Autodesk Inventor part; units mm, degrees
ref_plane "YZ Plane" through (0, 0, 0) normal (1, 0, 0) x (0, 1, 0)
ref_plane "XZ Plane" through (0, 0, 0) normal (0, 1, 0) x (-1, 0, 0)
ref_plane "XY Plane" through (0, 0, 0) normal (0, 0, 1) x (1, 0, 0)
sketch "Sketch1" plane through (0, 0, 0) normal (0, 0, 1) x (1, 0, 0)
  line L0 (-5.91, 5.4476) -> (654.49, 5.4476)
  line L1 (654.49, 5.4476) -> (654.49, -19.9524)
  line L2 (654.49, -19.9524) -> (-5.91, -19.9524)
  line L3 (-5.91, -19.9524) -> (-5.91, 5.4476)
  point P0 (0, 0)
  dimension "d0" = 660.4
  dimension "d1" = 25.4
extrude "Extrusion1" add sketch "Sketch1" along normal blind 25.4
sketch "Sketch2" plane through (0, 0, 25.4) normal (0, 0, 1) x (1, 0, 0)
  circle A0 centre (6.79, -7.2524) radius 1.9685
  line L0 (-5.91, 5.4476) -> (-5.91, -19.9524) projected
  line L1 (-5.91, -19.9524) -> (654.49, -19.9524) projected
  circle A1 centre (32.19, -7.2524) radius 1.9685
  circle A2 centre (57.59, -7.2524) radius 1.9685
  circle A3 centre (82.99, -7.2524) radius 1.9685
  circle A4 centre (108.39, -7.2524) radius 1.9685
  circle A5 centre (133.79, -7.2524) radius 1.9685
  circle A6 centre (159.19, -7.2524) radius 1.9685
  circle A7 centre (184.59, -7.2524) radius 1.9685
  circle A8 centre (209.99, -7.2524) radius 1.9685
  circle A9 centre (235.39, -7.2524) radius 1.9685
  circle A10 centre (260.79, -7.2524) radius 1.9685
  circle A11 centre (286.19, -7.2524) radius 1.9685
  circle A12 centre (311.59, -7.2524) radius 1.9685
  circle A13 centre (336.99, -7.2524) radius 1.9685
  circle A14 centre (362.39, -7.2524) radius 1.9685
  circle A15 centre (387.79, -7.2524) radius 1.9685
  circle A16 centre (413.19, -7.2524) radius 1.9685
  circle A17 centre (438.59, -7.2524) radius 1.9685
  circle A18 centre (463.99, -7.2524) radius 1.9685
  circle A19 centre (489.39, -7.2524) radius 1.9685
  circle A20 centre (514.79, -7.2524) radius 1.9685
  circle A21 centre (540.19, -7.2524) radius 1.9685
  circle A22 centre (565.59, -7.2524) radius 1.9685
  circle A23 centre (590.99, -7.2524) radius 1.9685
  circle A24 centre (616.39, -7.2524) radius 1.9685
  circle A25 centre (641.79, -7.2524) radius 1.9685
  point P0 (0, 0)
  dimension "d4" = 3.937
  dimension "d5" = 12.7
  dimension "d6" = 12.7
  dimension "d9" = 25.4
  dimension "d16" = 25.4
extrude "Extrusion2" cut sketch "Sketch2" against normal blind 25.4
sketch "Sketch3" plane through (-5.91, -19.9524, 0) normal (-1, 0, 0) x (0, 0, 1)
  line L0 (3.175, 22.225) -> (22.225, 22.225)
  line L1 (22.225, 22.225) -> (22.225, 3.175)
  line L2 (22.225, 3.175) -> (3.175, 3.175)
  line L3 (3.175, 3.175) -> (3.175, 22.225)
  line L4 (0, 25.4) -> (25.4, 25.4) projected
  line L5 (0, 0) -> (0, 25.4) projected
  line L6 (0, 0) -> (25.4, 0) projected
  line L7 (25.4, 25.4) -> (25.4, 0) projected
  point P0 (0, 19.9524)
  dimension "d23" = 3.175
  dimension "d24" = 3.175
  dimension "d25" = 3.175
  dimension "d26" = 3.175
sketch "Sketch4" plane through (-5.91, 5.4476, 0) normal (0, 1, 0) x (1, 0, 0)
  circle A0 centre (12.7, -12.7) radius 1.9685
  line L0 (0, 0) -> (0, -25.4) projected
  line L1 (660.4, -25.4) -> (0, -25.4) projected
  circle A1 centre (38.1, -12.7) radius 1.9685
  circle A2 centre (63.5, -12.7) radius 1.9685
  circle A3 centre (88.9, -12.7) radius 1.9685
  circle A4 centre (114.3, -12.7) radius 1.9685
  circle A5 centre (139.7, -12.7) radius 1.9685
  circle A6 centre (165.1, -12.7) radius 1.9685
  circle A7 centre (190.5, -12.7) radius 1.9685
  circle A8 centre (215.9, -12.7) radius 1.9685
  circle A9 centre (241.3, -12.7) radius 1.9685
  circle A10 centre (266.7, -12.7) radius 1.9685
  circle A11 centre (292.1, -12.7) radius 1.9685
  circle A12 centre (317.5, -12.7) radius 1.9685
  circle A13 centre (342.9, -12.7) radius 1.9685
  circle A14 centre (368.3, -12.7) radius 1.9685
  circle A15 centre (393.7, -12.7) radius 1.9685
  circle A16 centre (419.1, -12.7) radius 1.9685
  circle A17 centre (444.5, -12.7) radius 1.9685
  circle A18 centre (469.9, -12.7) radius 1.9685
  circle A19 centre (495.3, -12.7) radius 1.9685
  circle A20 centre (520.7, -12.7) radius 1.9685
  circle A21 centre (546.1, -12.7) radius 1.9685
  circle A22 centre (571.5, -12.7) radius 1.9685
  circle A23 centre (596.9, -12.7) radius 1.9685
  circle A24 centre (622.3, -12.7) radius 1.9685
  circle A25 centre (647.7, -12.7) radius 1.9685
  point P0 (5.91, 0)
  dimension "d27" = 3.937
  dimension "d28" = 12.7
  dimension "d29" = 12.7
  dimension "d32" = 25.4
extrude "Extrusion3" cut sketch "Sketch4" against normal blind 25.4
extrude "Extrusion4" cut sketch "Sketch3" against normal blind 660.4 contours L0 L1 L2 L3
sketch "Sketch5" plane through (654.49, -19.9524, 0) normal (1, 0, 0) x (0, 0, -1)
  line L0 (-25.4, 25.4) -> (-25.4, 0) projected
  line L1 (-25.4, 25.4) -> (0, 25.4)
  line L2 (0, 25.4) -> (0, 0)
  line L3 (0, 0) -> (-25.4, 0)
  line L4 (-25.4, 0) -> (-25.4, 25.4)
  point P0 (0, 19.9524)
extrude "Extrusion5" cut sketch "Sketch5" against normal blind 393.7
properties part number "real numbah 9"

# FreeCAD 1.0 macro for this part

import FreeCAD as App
import Part
import Sketcher
from FreeCAD import Vector
Q = App.Units.Quantity

doc = App.newDocument("Part")
params = doc.addObject("Spreadsheet::Sheet", "Params")
for row, (alias, value) in enumerate([
    ("sketch1_width", "26 in"),
    ("sketch1_height", "1 in"),
    ("pad1_length", "1 in"),
    ("sketch2_diameter", "0.155 in"),
    ("pocket1_length", "1 in"),
    ("sketch3_diameter", "0.155 in"),
    ("pocket2_length", "1 in"),
    ("sketch4_width", "0.75 in"),
    ("pocket3_length", "26 in"),
    ("sketch5_width", "1 in"),
    ("pocket4_length", "15.5 in"),
], start=1):
    params.set(f"A{row}", alias)
    params.set(f"B{row}", "=" + value)
    params.setAlias(f"B{row}", alias)

body = doc.addObject("PartDesign::Body", "Body")

# Sketch on XY plane
sketch1 = doc.addObject("Sketcher::SketchObject", "Sketch")
body.addObject(sketch1)
sketch1.AttachmentSupport = (doc.XY_Plane, [""])
sketch1.MapMode = "FlatFace"
sketch1.addGeometry([
    Part.LineSegment(Vector(654.49, 5.4476, 0), Vector(-5.91, 5.4476, 0)),
    Part.LineSegment(Vector(-5.91, 5.4476, 0), Vector(-5.91, -19.9524, 0)),
    Part.LineSegment(Vector(-5.91, -19.9524, 0), Vector(654.49, -19.9524, 0)),
    Part.LineSegment(Vector(654.49, -19.9524, 0), Vector(654.49, 5.4476, 0)),
], False)
sketch1.addConstraint([
    Sketcher.Constraint("Coincident", 0, 2, 1, 1),
    Sketcher.Constraint("Coincident", 1, 2, 2, 1),
    Sketcher.Constraint("Coincident", 2, 2, 3, 1),
    Sketcher.Constraint("Coincident", 3, 2, 0, 1),
    Sketcher.Constraint("Horizontal", 0),
    Sketcher.Constraint("Vertical", 1),
    Sketcher.Constraint("Horizontal", 2),
    Sketcher.Constraint("Vertical", 3),
    Sketcher.Constraint("DistanceX", 0, 2, 0, 1, Q("26 in")),
    Sketcher.Constraint("DistanceY", 1, 2, 1, 1, Q("1 in")),
    Sketcher.Constraint("DistanceX", 0, 2, -1, 1, 5.91),
    Sketcher.Constraint("DistanceY", -1, 1, 0, 2, 5.4476),
])
sketch1.setExpression("Constraints[8]", "Params.sketch1_width")
sketch1.setExpression("Constraints[9]", "Params.sketch1_height")
pad1 = doc.addObject("PartDesign::Pad", "Pad")
body.addObject(pad1)
pad1.Profile = sketch1
pad1.setExpression("Length", "Params.pad1_length")

# Sketch on XY plane
sketch2 = doc.addObject("Sketcher::SketchObject", "Sketch001")
body.addObject(sketch2)
sketch2.AttachmentSupport = (doc.XY_Plane, [""])
sketch2.MapMode = "FlatFace"
sketch2.AttachmentOffset = App.Placement(Vector(0, 0, 1 * 25.4), App.Rotation())
sketch2.addGeometry([
    Part.Circle(Vector(6.79, -7.2524, 0), Vector(0, 0, 1), 1.9685),  # 0
    Part.Circle(Vector(32.19, -7.2524, 0), Vector(0, 0, 1), 1.9685),  # 1
    Part.Circle(Vector(57.59, -7.2524, 0), Vector(0, 0, 1), 1.9685),  # 2
    Part.Circle(Vector(82.99, -7.2524, 0), Vector(0, 0, 1), 1.9685),  # 3
    Part.Circle(Vector(108.39, -7.2524, 0), Vector(0, 0, 1), 1.9685),  # 4
    Part.Circle(Vector(133.79, -7.2524, 0), Vector(0, 0, 1), 1.9685),  # 5
    Part.Circle(Vector(159.19, -7.2524, 0), Vector(0, 0, 1), 1.9685),  # 6
    Part.Circle(Vector(184.59, -7.2524, 0), Vector(0, 0, 1), 1.9685),  # 7
    Part.Circle(Vector(209.99, -7.2524, 0), Vector(0, 0, 1), 1.9685),  # 8
    Part.Circle(Vector(235.39, -7.2524, 0), Vector(0, 0, 1), 1.9685),  # 9
    Part.Circle(Vector(260.79, -7.2524, 0), Vector(0, 0, 1), 1.9685),  # 10
    Part.Circle(Vector(286.19, -7.2524, 0), Vector(0, 0, 1), 1.9685),  # 11
    Part.Circle(Vector(311.59, -7.2524, 0), Vector(0, 0, 1), 1.9685),  # 12
    Part.Circle(Vector(336.99, -7.2524, 0), Vector(0, 0, 1), 1.9685),  # 13
    Part.Circle(Vector(362.39, -7.2524, 0), Vector(0, 0, 1), 1.9685),  # 14
    Part.Circle(Vector(387.79, -7.2524, 0), Vector(0, 0, 1), 1.9685),  # 15
    Part.Circle(Vector(413.19, -7.2524, 0), Vector(0, 0, 1), 1.9685),  # 16
    Part.Circle(Vector(438.59, -7.2524, 0), Vector(0, 0, 1), 1.9685),  # 17
    Part.Circle(Vector(463.99, -7.2524, 0), Vector(0, 0, 1), 1.9685),  # 18
    Part.Circle(Vector(489.39, -7.2524, 0), Vector(0, 0, 1), 1.9685),  # 19
    Part.Circle(Vector(514.79, -7.2524, 0), Vector(0, 0, 1), 1.9685),  # 20
    Part.Circle(Vector(540.19, -7.2524, 0), Vector(0, 0, 1), 1.9685),  # 21
    Part.Circle(Vector(565.59, -7.2524, 0), Vector(0, 0, 1), 1.9685),  # 22
    Part.Circle(Vector(590.99, -7.2524, 0), Vector(0, 0, 1), 1.9685),  # 23
    Part.Circle(Vector(616.39, -7.2524, 0), Vector(0, 0, 1), 1.9685),  # 24
    Part.Circle(Vector(641.79, -7.2524, 0), Vector(0, 0, 1), 1.9685),  # 25
], False)
sketch2.addConstraint([
    Sketcher.Constraint("Equal", 0, 1),
    Sketcher.Constraint("Equal", 1, 2),
    Sketcher.Constraint("Equal", 2, 3),
    Sketcher.Constraint("Equal", 3, 4),
    Sketcher.Constraint("Equal", 4, 5),
    Sketcher.Constraint("Equal", 5, 6),
    Sketcher.Constraint("Equal", 6, 7),
    Sketcher.Constraint("Equal", 7, 8),
    Sketcher.Constraint("Equal", 8, 9),
    Sketcher.Constraint("Equal", 9, 10),
    Sketcher.Constraint("Equal", 10, 11),
    Sketcher.Constraint("Equal", 11, 12),
    Sketcher.Constraint("Equal", 12, 13),
    Sketcher.Constraint("Equal", 13, 14),
    Sketcher.Constraint("Equal", 14, 15),
    Sketcher.Constraint("Equal", 15, 16),
    Sketcher.Constraint("Equal", 16, 17),
    Sketcher.Constraint("Equal", 17, 18),
    Sketcher.Constraint("Equal", 18, 19),
    Sketcher.Constraint("Equal", 19, 20),
    Sketcher.Constraint("Equal", 20, 21),
    Sketcher.Constraint("Equal", 21, 22),
    Sketcher.Constraint("Equal", 22, 23),
    Sketcher.Constraint("Equal", 23, 24),
    Sketcher.Constraint("Equal", 24, 25),
    Sketcher.Constraint("Horizontal", 0, 3, 1, 3),
    Sketcher.Constraint("Horizontal", 1, 3, 2, 3),
    Sketcher.Constraint("Horizontal", 2, 3, 3, 3),
    Sketcher.Constraint("Horizontal", 3, 3, 4, 3),
    Sketcher.Constraint("Horizontal", 4, 3, 5, 3),
    Sketcher.Constraint("Horizontal", 5, 3, 6, 3),
    Sketcher.Constraint("Horizontal", 6, 3, 7, 3),
    Sketcher.Constraint("Horizontal", 7, 3, 8, 3),
    Sketcher.Constraint("Horizontal", 8, 3, 9, 3),
    Sketcher.Constraint("Horizontal", 9, 3, 10, 3),
    Sketcher.Constraint("Horizontal", 10, 3, 11, 3),
    Sketcher.Constraint("Horizontal", 11, 3, 12, 3),
    Sketcher.Constraint("Horizontal", 12, 3, 13, 3),
    Sketcher.Constraint("Horizontal", 13, 3, 14, 3),
    Sketcher.Constraint("Horizontal", 14, 3, 15, 3),
    Sketcher.Constraint("Horizontal", 15, 3, 16, 3),
    Sketcher.Constraint("Horizontal", 16, 3, 17, 3),
    Sketcher.Constraint("Horizontal", 17, 3, 18, 3),
    Sketcher.Constraint("Horizontal", 18, 3, 19, 3),
    Sketcher.Constraint("Horizontal", 19, 3, 20, 3),
    Sketcher.Constraint("Horizontal", 20, 3, 21, 3),
    Sketcher.Constraint("Horizontal", 21, 3, 22, 3),
    Sketcher.Constraint("Horizontal", 22, 3, 23, 3),
    Sketcher.Constraint("Horizontal", 23, 3, 24, 3),
    Sketcher.Constraint("Horizontal", 24, 3, 25, 3),
    Sketcher.Constraint("Diameter", 0, Q("0.155 in")),
    Sketcher.Constraint("DistanceX", 0, 3, 1, 3, Q("1 in")),
    Sketcher.Constraint("DistanceX", 1, 3, 2, 3, Q("1 in")),
    Sketcher.Constraint("DistanceX", 2, 3, 3, 3, Q("1 in")),
    Sketcher.Constraint("DistanceX", 3, 3, 4, 3, Q("1 in")),
    Sketcher.Constraint("DistanceX", 4, 3, 5, 3, Q("1 in")),
    Sketcher.Constraint("DistanceX", 5, 3, 6, 3, Q("1 in")),
    Sketcher.Constraint("DistanceX", 6, 3, 7, 3, Q("1 in")),
    Sketcher.Constraint("DistanceX", 7, 3, 8, 3, Q("1 in")),
    Sketcher.Constraint("DistanceX", 8, 3, 9, 3, Q("1 in")),
    Sketcher.Constraint("DistanceX", 9, 3, 10, 3, Q("1 in")),
    Sketcher.Constraint("DistanceX", 10, 3, 11, 3, Q("1 in")),
    Sketcher.Constraint("DistanceX", 11, 3, 12, 3, Q("1 in")),
    Sketcher.Constraint("DistanceX", 12, 3, 13, 3, Q("1 in")),
    Sketcher.Constraint("DistanceX", 13, 3, 14, 3, Q("1 in")),
    Sketcher.Constraint("DistanceX", 14, 3, 15, 3, Q("1 in")),
    Sketcher.Constraint("DistanceX", 15, 3, 16, 3, Q("1 in")),
    Sketcher.Constraint("DistanceX", 16, 3, 17, 3, Q("1 in")),
    Sketcher.Constraint("DistanceX", 17, 3, 18, 3, Q("1 in")),
    Sketcher.Constraint("DistanceX", 18, 3, 19, 3, Q("1 in")),
    Sketcher.Constraint("DistanceX", 19, 3, 20, 3, Q("1 in")),
    Sketcher.Constraint("DistanceX", 20, 3, 21, 3, Q("1 in")),
    Sketcher.Constraint("DistanceX", 21, 3, 22, 3, Q("1 in")),
    Sketcher.Constraint("DistanceX", 22, 3, 23, 3, Q("1 in")),
    Sketcher.Constraint("DistanceX", 23, 3, 24, 3, Q("1 in")),
    Sketcher.Constraint("DistanceX", 24, 3, 25, 3, Q("1 in")),
    Sketcher.Constraint("DistanceX", -1, 1, 0, 3, 6.79),
    Sketcher.Constraint("DistanceY", 0, 3, -1, 1, 7.2524),
])
sketch2.setExpression("Constraints[50]", "Params.sketch2_diameter")
pocket1 = doc.addObject("PartDesign::Pocket", "Pocket")
body.addObject(pocket1)
pocket1.Profile = sketch2
pocket1.setExpression("Length", "Params.pocket1_length")

# Sketch on XZ plane
sketch3 = doc.addObject("Sketcher::SketchObject", "Sketch002")
body.addObject(sketch3)
sketch3.AttachmentSupport = (doc.XZ_Plane, [""])
sketch3.MapMode = "FlatFace"
sketch3.AttachmentOffset = App.Placement(Vector(0, 0, -5.4476), App.Rotation())
sketch3.addGeometry([
    Part.Circle(Vector(6.79, 12.7, 0), Vector(0, 0, 1), 1.9685),  # 0
    Part.Circle(Vector(32.19, 12.7, 0), Vector(0, 0, 1), 1.9685),  # 1
    Part.Circle(Vector(57.59, 12.7, 0), Vector(0, 0, 1), 1.9685),  # 2
    Part.Circle(Vector(82.99, 12.7, 0), Vector(0, 0, 1), 1.9685),  # 3
    Part.Circle(Vector(108.39, 12.7, 0), Vector(0, 0, 1), 1.9685),  # 4
    Part.Circle(Vector(133.79, 12.7, 0), Vector(0, 0, 1), 1.9685),  # 5
    Part.Circle(Vector(159.19, 12.7, 0), Vector(0, 0, 1), 1.9685),  # 6
    Part.Circle(Vector(184.59, 12.7, 0), Vector(0, 0, 1), 1.9685),  # 7
    Part.Circle(Vector(209.99, 12.7, 0), Vector(0, 0, 1), 1.9685),  # 8
    Part.Circle(Vector(235.39, 12.7, 0), Vector(0, 0, 1), 1.9685),  # 9
    Part.Circle(Vector(260.79, 12.7, 0), Vector(0, 0, 1), 1.9685),  # 10
    Part.Circle(Vector(286.19, 12.7, 0), Vector(0, 0, 1), 1.9685),  # 11
    Part.Circle(Vector(311.59, 12.7, 0), Vector(0, 0, 1), 1.9685),  # 12
    Part.Circle(Vector(336.99, 12.7, 0), Vector(0, 0, 1), 1.9685),  # 13
    Part.Circle(Vector(362.39, 12.7, 0), Vector(0, 0, 1), 1.9685),  # 14
    Part.Circle(Vector(387.79, 12.7, 0), Vector(0, 0, 1), 1.9685),  # 15
    Part.Circle(Vector(413.19, 12.7, 0), Vector(0, 0, 1), 1.9685),  # 16
    Part.Circle(Vector(438.59, 12.7, 0), Vector(0, 0, 1), 1.9685),  # 17
    Part.Circle(Vector(463.99, 12.7, 0), Vector(0, 0, 1), 1.9685),  # 18
    Part.Circle(Vector(489.39, 12.7, 0), Vector(0, 0, 1), 1.9685),  # 19
    Part.Circle(Vector(514.79, 12.7, 0), Vector(0, 0, 1), 1.9685),  # 20
    Part.Circle(Vector(540.19, 12.7, 0), Vector(0, 0, 1), 1.9685),  # 21
    Part.Circle(Vector(565.59, 12.7, 0), Vector(0, 0, 1), 1.9685),  # 22
    Part.Circle(Vector(590.99, 12.7, 0), Vector(0, 0, 1), 1.9685),  # 23
    Part.Circle(Vector(616.39, 12.7, 0), Vector(0, 0, 1), 1.9685),  # 24
    Part.Circle(Vector(641.79, 12.7, 0), Vector(0, 0, 1), 1.9685),  # 25
], False)
sketch3.addConstraint([
    Sketcher.Constraint("Equal", 0, 1),
    Sketcher.Constraint("Equal", 1, 2),
    Sketcher.Constraint("Equal", 2, 3),
    Sketcher.Constraint("Equal", 3, 4),
    Sketcher.Constraint("Equal", 4, 5),
    Sketcher.Constraint("Equal", 5, 6),
    Sketcher.Constraint("Equal", 6, 7),
    Sketcher.Constraint("Equal", 7, 8),
    Sketcher.Constraint("Equal", 8, 9),
    Sketcher.Constraint("Equal", 9, 10),
    Sketcher.Constraint("Equal", 10, 11),
    Sketcher.Constraint("Equal", 11, 12),
    Sketcher.Constraint("Equal", 12, 13),
    Sketcher.Constraint("Equal", 13, 14),
    Sketcher.Constraint("Equal", 14, 15),
    Sketcher.Constraint("Equal", 15, 16),
    Sketcher.Constraint("Equal", 16, 17),
    Sketcher.Constraint("Equal", 17, 18),
    Sketcher.Constraint("Equal", 18, 19),
    Sketcher.Constraint("Equal", 19, 20),
    Sketcher.Constraint("Equal", 20, 21),
    Sketcher.Constraint("Equal", 21, 22),
    Sketcher.Constraint("Equal", 22, 23),
    Sketcher.Constraint("Equal", 23, 24),
    Sketcher.Constraint("Equal", 24, 25),
    Sketcher.Constraint("Horizontal", 0, 3, 1, 3),
    Sketcher.Constraint("Horizontal", 1, 3, 2, 3),
    Sketcher.Constraint("Horizontal", 2, 3, 3, 3),
    Sketcher.Constraint("Horizontal", 3, 3, 4, 3),
    Sketcher.Constraint("Horizontal", 4, 3, 5, 3),
    Sketcher.Constraint("Horizontal", 5, 3, 6, 3),
    Sketcher.Constraint("Horizontal", 6, 3, 7, 3),
    Sketcher.Constraint("Horizontal", 7, 3, 8, 3),
    Sketcher.Constraint("Horizontal", 8, 3, 9, 3),
    Sketcher.Constraint("Horizontal", 9, 3, 10, 3),
    Sketcher.Constraint("Horizontal", 10, 3, 11, 3),
    Sketcher.Constraint("Horizontal", 11, 3, 12, 3),
    Sketcher.Constraint("Horizontal", 12, 3, 13, 3),
    Sketcher.Constraint("Horizontal", 13, 3, 14, 3),
    Sketcher.Constraint("Horizontal", 14, 3, 15, 3),
    Sketcher.Constraint("Horizontal", 15, 3, 16, 3),
    Sketcher.Constraint("Horizontal", 16, 3, 17, 3),
    Sketcher.Constraint("Horizontal", 17, 3, 18, 3),
    Sketcher.Constraint("Horizontal", 18, 3, 19, 3),
    Sketcher.Constraint("Horizontal", 19, 3, 20, 3),
    Sketcher.Constraint("Horizontal", 20, 3, 21, 3),
    Sketcher.Constraint("Horizontal", 21, 3, 22, 3),
    Sketcher.Constraint("Horizontal", 22, 3, 23, 3),
    Sketcher.Constraint("Horizontal", 23, 3, 24, 3),
    Sketcher.Constraint("Horizontal", 24, 3, 25, 3),
    Sketcher.Constraint("Diameter", 0, Q("0.155 in")),
    Sketcher.Constraint("DistanceX", 0, 3, 1, 3, Q("1 in")),
    Sketcher.Constraint("DistanceX", 1, 3, 2, 3, Q("1 in")),
    Sketcher.Constraint("DistanceX", 2, 3, 3, 3, Q("1 in")),
    Sketcher.Constraint("DistanceX", 3, 3, 4, 3, Q("1 in")),
    Sketcher.Constraint("DistanceX", 4, 3, 5, 3, Q("1 in")),
    Sketcher.Constraint("DistanceX", 5, 3, 6, 3, Q("1 in")),
    Sketcher.Constraint("DistanceX", 6, 3, 7, 3, Q("1 in")),
    Sketcher.Constraint("DistanceX", 7, 3, 8, 3, Q("1 in")),
    Sketcher.Constraint("DistanceX", 8, 3, 9, 3, Q("1 in")),
    Sketcher.Constraint("DistanceX", 9, 3, 10, 3, Q("1 in")),
    Sketcher.Constraint("DistanceX", 10, 3, 11, 3, Q("1 in")),
    Sketcher.Constraint("DistanceX", 11, 3, 12, 3, Q("1 in")),
    Sketcher.Constraint("DistanceX", 12, 3, 13, 3, Q("1 in")),
    Sketcher.Constraint("DistanceX", 13, 3, 14, 3, Q("1 in")),
    Sketcher.Constraint("DistanceX", 14, 3, 15, 3, Q("1 in")),
    Sketcher.Constraint("DistanceX", 15, 3, 16, 3, Q("1 in")),
    Sketcher.Constraint("DistanceX", 16, 3, 17, 3, Q("1 in")),
    Sketcher.Constraint("DistanceX", 17, 3, 18, 3, Q("1 in")),
    Sketcher.Constraint("DistanceX", 18, 3, 19, 3, Q("1 in")),
    Sketcher.Constraint("DistanceX", 19, 3, 20, 3, Q("1 in")),
    Sketcher.Constraint("DistanceX", 20, 3, 21, 3, Q("1 in")),
    Sketcher.Constraint("DistanceX", 21, 3, 22, 3, Q("1 in")),
    Sketcher.Constraint("DistanceX", 22, 3, 23, 3, Q("1 in")),
    Sketcher.Constraint("DistanceX", 23, 3, 24, 3, Q("1 in")),
    Sketcher.Constraint("DistanceX", 24, 3, 25, 3, Q("1 in")),
    Sketcher.Constraint("DistanceY", -1, 1, 0, 3, Q("0.5 in")),
    Sketcher.Constraint("DistanceX", -1, 1, 0, 3, 6.79),
])
sketch3.setExpression("Constraints[50]", "Params.sketch3_diameter")
pocket2 = doc.addObject("PartDesign::Pocket", "Pocket001")
body.addObject(pocket2)
pocket2.Profile = sketch3
pocket2.setExpression("Length", "Params.pocket2_length")
pocket2.Reversed = True

# Sketch on YZ plane
sketch4 = doc.addObject("Sketcher::SketchObject", "Sketch003")
body.addObject(sketch4)
sketch4.AttachmentSupport = (doc.YZ_Plane, [""])
sketch4.MapMode = "FlatFace"
sketch4.AttachmentOffset = App.Placement(Vector(0, 0, -5.91), App.Rotation())
sketch4.addGeometry([
    Part.LineSegment(Vector(2.2726, 22.225, 0), Vector(2.2726, 3.175, 0)),
    Part.LineSegment(Vector(2.2726, 3.175, 0), Vector(-16.7774, 3.175, 0)),
    Part.LineSegment(Vector(-16.7774, 3.175, 0), Vector(-16.7774, 22.225, 0)),
    Part.LineSegment(Vector(-16.7774, 22.225, 0), Vector(2.2726, 22.225, 0)),
], False)
sketch4.addConstraint([
    Sketcher.Constraint("Coincident", 0, 2, 1, 1),
    Sketcher.Constraint("Coincident", 1, 2, 2, 1),
    Sketcher.Constraint("Coincident", 2, 2, 3, 1),
    Sketcher.Constraint("Coincident", 3, 2, 0, 1),
    Sketcher.Constraint("Vertical", 0),
    Sketcher.Constraint("Horizontal", 1),
    Sketcher.Constraint("Vertical", 2),
    Sketcher.Constraint("Horizontal", 3),
    Sketcher.Constraint("Equal", 3, 0),
    Sketcher.Constraint("DistanceY", -1, 1, 0, 2, Q("0.125 in")),
    Sketcher.Constraint("DistanceX", 1, 2, 1, 1, Q("0.75 in")),
    Sketcher.Constraint("DistanceX", -1, 1, 0, 2, 2.2726),
])
sketch4.setExpression("Constraints[10]", "Params.sketch4_width")
pocket3 = doc.addObject("PartDesign::Pocket", "Pocket002")
body.addObject(pocket3)
pocket3.Profile = sketch4
pocket3.setExpression("Length", "Params.pocket3_length")
pocket3.Reversed = True

# Sketch on YZ plane
sketch5 = doc.addObject("Sketcher::SketchObject", "Sketch004")
body.addObject(sketch5)
sketch5.AttachmentSupport = (doc.YZ_Plane, [""])
sketch5.MapMode = "FlatFace"
sketch5.AttachmentOffset = App.Placement(Vector(0, 0, 654.49), App.Rotation())
sketch5.addGeometry([
    Part.LineSegment(Vector(5.4476, 0, 0), Vector(5.4476, 25.4, 0)),
    Part.LineSegment(Vector(5.4476, 25.4, 0), Vector(-19.9524, 25.4, 0)),
    Part.LineSegment(Vector(-19.9524, 25.4, 0), Vector(-19.9524, 0, 0)),
    Part.LineSegment(Vector(-19.9524, 0, 0), Vector(5.4476, 0, 0)),
], False)
sketch5.addConstraint([
    Sketcher.Constraint("Coincident", 0, 2, 1, 1),
    Sketcher.Constraint("Coincident", 1, 2, 2, 1),
    Sketcher.Constraint("Coincident", 2, 2, 3, 1),
    Sketcher.Constraint("Coincident", 3, 2, 0, 1),
    Sketcher.Constraint("Vertical", 0),
    Sketcher.Constraint("Horizontal", 1),
    Sketcher.Constraint("Vertical", 2),
    Sketcher.Constraint("Horizontal", 3),
    Sketcher.Constraint("PointOnObject", 2, 2, -1),
    Sketcher.Constraint("Equal", 3, 0),
    Sketcher.Constraint("DistanceX", 1, 2, 1, 1, Q("1 in")),
    Sketcher.Constraint("DistanceX", -1, 1, 0, 2, 5.4476),
])
sketch5.setExpression("Constraints[10]", "Params.sketch5_width")
pocket4 = doc.addObject("PartDesign::Pocket", "Pocket003")
body.addObject(pocket4)
pocket4.Profile = sketch5
pocket4.setExpression("Length", "Params.pocket4_length")

doc.recompute()
